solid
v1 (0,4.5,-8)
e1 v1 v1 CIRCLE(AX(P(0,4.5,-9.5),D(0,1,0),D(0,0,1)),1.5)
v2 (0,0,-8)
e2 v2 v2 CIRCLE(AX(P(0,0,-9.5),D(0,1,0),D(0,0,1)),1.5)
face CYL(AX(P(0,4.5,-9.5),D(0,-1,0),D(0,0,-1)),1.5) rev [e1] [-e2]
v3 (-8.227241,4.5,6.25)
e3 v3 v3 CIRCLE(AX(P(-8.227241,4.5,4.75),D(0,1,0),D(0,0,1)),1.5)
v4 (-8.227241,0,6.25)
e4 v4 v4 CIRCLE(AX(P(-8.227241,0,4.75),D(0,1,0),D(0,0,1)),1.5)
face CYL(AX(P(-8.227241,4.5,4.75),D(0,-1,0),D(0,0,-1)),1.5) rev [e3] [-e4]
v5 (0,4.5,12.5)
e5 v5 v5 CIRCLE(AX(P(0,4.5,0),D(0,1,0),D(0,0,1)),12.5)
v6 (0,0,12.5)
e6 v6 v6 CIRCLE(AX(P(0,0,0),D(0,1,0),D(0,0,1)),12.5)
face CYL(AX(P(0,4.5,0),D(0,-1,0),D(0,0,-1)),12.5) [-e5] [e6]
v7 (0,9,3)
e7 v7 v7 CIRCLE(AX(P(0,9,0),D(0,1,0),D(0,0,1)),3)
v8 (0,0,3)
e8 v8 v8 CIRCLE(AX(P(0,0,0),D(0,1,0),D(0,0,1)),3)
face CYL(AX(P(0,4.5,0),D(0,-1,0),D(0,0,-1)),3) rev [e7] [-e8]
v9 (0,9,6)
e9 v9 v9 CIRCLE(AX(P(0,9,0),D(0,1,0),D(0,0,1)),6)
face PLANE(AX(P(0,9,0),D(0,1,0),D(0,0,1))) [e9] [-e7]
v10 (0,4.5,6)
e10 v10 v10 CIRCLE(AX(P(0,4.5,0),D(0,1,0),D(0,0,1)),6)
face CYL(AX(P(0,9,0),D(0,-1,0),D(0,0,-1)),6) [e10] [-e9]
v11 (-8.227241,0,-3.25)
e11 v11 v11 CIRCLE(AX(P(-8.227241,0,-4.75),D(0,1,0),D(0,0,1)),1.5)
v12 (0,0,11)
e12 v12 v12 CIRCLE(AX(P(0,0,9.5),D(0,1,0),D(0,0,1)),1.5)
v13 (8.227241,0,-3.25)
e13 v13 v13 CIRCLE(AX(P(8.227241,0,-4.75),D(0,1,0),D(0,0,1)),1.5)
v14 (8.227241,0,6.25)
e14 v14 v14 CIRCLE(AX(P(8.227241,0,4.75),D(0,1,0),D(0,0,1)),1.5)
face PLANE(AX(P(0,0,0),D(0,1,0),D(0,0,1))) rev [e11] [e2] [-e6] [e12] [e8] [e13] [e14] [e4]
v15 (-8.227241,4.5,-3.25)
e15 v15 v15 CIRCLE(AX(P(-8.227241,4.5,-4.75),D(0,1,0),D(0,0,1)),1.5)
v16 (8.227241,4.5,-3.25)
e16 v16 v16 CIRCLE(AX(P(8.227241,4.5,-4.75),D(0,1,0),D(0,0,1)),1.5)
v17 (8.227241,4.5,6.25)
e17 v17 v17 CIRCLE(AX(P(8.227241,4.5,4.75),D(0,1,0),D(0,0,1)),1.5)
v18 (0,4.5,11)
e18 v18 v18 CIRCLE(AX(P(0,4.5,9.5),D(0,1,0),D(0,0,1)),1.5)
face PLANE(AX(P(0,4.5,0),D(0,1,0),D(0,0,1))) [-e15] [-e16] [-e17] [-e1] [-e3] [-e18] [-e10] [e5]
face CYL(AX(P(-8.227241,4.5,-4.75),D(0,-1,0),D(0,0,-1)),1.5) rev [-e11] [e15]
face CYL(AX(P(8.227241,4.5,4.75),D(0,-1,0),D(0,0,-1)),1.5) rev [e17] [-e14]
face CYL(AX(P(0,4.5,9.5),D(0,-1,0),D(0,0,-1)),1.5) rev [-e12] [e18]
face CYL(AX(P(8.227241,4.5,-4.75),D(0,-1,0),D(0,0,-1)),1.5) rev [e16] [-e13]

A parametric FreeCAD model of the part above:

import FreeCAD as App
import Part
import Sketcher

V = App.Vector

doc = App.newDocument("Part")
body = doc.addObject("PartDesign::Body", "Body")

sketch1 = body.newObject("Sketcher::SketchObject", "Sketch")
sketch1.AttachmentSupport = (doc.getObject("XZ_Plane"), [""])
sketch1.MapMode = "FlatFace"
sketch1.addGeometry([
    Part.Circle(V(0, 0, 0), V(0, 0, 1), 12.5),
    Part.Circle(V(-8.2, -4.8, 0), V(0, 0, 1), 1.5),
    Part.Circle(V(0, -9.5, 0), V(0, 0, 1), 1.5),
    Part.Circle(V(-8.2, 4.8, 0), V(0, 0, 1), 1.5),
    Part.Circle(V(8.2, -4.8, 0), V(0, 0, 1), 1.5),
    Part.Circle(V(0, 9.5, 0), V(0, 0, 1), 1.5),
    Part.Circle(V(8.2, 4.8, 0), V(0, 0, 1), 1.5),
    Part.Circle(V(0, 0, 0), V(0, 0, 1), 3),
], False)
sketch1.addConstraint([
    Sketcher.Constraint("Coincident", 0, 3, -1, 1),
    Sketcher.Constraint("Coincident", 7, 3, -1, 1),
    Sketcher.Constraint("Equal", 1, 2),
    Sketcher.Constraint("Equal", 2, 3),
    Sketcher.Constraint("Equal", 3, 4),
    Sketcher.Constraint("Equal", 4, 5),
    Sketcher.Constraint("Equal", 5, 6),
    Sketcher.Constraint("Symmetric", 3, 3, 4, 3, -1, 1),
    Sketcher.Constraint("Symmetric", 2, 3, 5, 3, -1, 1),
    Sketcher.Constraint("Symmetric", 1, 3, 6, 3, -1, 1),
    Sketcher.Constraint("Symmetric", 1, 3, 4, 3, -2),
    Sketcher.Constraint("PointOnObject", 2, 3, -2),
    Sketcher.Constraint("Diameter", 0, 25.0),
    Sketcher.Constraint("Diameter", 1, 3.0),
    Sketcher.Constraint("Diameter", 7, 6.0),
    Sketcher.Constraint("DistanceY", 2, 3, 5, 3, 19.0),
    Sketcher.Constraint("DistanceY", 1, 3, 3, 3, 9.5),
    Sketcher.Constraint("DistanceX", 1, 3, -1, 1, 8.227241),
])
pad1 = body.newObject("PartDesign::Pad", "Pad")
pad1.Profile = sketch1
pad1.Length = 4.5
pad1.Reversed = True

sketch2 = body.newObject("Sketcher::SketchObject", "Sketch001")
sketch2.AttachmentSupport = (doc.getObject("XZ_Plane"), [""])
sketch2.MapMode = "FlatFace"
sketch2.AttachmentOffset = App.Placement(V(0, 0, -4.5), App.Rotation())
sketch2.addGeometry([
    Part.Circle(V(0, 0, 0), V(0, 0, 1), 6),
    Part.Circle(V(0, 0, 0), V(0, 0, 1), 3),
], False)
sketch2.addConstraint([
    Sketcher.Constraint("Coincident", 0, 3, -1, 1),
    Sketcher.Constraint("Coincident", 1, 3, -1, 1),
    Sketcher.Constraint("Diameter", 0, 12.0),
    Sketcher.Constraint("Diameter", 1, 6.0),
])
pad2 = body.newObject("PartDesign::Pad", "Pad001")
pad2.Profile = sketch2
pad2.Length = 4.5
pad2.Reversed = True

doc.recompute()
